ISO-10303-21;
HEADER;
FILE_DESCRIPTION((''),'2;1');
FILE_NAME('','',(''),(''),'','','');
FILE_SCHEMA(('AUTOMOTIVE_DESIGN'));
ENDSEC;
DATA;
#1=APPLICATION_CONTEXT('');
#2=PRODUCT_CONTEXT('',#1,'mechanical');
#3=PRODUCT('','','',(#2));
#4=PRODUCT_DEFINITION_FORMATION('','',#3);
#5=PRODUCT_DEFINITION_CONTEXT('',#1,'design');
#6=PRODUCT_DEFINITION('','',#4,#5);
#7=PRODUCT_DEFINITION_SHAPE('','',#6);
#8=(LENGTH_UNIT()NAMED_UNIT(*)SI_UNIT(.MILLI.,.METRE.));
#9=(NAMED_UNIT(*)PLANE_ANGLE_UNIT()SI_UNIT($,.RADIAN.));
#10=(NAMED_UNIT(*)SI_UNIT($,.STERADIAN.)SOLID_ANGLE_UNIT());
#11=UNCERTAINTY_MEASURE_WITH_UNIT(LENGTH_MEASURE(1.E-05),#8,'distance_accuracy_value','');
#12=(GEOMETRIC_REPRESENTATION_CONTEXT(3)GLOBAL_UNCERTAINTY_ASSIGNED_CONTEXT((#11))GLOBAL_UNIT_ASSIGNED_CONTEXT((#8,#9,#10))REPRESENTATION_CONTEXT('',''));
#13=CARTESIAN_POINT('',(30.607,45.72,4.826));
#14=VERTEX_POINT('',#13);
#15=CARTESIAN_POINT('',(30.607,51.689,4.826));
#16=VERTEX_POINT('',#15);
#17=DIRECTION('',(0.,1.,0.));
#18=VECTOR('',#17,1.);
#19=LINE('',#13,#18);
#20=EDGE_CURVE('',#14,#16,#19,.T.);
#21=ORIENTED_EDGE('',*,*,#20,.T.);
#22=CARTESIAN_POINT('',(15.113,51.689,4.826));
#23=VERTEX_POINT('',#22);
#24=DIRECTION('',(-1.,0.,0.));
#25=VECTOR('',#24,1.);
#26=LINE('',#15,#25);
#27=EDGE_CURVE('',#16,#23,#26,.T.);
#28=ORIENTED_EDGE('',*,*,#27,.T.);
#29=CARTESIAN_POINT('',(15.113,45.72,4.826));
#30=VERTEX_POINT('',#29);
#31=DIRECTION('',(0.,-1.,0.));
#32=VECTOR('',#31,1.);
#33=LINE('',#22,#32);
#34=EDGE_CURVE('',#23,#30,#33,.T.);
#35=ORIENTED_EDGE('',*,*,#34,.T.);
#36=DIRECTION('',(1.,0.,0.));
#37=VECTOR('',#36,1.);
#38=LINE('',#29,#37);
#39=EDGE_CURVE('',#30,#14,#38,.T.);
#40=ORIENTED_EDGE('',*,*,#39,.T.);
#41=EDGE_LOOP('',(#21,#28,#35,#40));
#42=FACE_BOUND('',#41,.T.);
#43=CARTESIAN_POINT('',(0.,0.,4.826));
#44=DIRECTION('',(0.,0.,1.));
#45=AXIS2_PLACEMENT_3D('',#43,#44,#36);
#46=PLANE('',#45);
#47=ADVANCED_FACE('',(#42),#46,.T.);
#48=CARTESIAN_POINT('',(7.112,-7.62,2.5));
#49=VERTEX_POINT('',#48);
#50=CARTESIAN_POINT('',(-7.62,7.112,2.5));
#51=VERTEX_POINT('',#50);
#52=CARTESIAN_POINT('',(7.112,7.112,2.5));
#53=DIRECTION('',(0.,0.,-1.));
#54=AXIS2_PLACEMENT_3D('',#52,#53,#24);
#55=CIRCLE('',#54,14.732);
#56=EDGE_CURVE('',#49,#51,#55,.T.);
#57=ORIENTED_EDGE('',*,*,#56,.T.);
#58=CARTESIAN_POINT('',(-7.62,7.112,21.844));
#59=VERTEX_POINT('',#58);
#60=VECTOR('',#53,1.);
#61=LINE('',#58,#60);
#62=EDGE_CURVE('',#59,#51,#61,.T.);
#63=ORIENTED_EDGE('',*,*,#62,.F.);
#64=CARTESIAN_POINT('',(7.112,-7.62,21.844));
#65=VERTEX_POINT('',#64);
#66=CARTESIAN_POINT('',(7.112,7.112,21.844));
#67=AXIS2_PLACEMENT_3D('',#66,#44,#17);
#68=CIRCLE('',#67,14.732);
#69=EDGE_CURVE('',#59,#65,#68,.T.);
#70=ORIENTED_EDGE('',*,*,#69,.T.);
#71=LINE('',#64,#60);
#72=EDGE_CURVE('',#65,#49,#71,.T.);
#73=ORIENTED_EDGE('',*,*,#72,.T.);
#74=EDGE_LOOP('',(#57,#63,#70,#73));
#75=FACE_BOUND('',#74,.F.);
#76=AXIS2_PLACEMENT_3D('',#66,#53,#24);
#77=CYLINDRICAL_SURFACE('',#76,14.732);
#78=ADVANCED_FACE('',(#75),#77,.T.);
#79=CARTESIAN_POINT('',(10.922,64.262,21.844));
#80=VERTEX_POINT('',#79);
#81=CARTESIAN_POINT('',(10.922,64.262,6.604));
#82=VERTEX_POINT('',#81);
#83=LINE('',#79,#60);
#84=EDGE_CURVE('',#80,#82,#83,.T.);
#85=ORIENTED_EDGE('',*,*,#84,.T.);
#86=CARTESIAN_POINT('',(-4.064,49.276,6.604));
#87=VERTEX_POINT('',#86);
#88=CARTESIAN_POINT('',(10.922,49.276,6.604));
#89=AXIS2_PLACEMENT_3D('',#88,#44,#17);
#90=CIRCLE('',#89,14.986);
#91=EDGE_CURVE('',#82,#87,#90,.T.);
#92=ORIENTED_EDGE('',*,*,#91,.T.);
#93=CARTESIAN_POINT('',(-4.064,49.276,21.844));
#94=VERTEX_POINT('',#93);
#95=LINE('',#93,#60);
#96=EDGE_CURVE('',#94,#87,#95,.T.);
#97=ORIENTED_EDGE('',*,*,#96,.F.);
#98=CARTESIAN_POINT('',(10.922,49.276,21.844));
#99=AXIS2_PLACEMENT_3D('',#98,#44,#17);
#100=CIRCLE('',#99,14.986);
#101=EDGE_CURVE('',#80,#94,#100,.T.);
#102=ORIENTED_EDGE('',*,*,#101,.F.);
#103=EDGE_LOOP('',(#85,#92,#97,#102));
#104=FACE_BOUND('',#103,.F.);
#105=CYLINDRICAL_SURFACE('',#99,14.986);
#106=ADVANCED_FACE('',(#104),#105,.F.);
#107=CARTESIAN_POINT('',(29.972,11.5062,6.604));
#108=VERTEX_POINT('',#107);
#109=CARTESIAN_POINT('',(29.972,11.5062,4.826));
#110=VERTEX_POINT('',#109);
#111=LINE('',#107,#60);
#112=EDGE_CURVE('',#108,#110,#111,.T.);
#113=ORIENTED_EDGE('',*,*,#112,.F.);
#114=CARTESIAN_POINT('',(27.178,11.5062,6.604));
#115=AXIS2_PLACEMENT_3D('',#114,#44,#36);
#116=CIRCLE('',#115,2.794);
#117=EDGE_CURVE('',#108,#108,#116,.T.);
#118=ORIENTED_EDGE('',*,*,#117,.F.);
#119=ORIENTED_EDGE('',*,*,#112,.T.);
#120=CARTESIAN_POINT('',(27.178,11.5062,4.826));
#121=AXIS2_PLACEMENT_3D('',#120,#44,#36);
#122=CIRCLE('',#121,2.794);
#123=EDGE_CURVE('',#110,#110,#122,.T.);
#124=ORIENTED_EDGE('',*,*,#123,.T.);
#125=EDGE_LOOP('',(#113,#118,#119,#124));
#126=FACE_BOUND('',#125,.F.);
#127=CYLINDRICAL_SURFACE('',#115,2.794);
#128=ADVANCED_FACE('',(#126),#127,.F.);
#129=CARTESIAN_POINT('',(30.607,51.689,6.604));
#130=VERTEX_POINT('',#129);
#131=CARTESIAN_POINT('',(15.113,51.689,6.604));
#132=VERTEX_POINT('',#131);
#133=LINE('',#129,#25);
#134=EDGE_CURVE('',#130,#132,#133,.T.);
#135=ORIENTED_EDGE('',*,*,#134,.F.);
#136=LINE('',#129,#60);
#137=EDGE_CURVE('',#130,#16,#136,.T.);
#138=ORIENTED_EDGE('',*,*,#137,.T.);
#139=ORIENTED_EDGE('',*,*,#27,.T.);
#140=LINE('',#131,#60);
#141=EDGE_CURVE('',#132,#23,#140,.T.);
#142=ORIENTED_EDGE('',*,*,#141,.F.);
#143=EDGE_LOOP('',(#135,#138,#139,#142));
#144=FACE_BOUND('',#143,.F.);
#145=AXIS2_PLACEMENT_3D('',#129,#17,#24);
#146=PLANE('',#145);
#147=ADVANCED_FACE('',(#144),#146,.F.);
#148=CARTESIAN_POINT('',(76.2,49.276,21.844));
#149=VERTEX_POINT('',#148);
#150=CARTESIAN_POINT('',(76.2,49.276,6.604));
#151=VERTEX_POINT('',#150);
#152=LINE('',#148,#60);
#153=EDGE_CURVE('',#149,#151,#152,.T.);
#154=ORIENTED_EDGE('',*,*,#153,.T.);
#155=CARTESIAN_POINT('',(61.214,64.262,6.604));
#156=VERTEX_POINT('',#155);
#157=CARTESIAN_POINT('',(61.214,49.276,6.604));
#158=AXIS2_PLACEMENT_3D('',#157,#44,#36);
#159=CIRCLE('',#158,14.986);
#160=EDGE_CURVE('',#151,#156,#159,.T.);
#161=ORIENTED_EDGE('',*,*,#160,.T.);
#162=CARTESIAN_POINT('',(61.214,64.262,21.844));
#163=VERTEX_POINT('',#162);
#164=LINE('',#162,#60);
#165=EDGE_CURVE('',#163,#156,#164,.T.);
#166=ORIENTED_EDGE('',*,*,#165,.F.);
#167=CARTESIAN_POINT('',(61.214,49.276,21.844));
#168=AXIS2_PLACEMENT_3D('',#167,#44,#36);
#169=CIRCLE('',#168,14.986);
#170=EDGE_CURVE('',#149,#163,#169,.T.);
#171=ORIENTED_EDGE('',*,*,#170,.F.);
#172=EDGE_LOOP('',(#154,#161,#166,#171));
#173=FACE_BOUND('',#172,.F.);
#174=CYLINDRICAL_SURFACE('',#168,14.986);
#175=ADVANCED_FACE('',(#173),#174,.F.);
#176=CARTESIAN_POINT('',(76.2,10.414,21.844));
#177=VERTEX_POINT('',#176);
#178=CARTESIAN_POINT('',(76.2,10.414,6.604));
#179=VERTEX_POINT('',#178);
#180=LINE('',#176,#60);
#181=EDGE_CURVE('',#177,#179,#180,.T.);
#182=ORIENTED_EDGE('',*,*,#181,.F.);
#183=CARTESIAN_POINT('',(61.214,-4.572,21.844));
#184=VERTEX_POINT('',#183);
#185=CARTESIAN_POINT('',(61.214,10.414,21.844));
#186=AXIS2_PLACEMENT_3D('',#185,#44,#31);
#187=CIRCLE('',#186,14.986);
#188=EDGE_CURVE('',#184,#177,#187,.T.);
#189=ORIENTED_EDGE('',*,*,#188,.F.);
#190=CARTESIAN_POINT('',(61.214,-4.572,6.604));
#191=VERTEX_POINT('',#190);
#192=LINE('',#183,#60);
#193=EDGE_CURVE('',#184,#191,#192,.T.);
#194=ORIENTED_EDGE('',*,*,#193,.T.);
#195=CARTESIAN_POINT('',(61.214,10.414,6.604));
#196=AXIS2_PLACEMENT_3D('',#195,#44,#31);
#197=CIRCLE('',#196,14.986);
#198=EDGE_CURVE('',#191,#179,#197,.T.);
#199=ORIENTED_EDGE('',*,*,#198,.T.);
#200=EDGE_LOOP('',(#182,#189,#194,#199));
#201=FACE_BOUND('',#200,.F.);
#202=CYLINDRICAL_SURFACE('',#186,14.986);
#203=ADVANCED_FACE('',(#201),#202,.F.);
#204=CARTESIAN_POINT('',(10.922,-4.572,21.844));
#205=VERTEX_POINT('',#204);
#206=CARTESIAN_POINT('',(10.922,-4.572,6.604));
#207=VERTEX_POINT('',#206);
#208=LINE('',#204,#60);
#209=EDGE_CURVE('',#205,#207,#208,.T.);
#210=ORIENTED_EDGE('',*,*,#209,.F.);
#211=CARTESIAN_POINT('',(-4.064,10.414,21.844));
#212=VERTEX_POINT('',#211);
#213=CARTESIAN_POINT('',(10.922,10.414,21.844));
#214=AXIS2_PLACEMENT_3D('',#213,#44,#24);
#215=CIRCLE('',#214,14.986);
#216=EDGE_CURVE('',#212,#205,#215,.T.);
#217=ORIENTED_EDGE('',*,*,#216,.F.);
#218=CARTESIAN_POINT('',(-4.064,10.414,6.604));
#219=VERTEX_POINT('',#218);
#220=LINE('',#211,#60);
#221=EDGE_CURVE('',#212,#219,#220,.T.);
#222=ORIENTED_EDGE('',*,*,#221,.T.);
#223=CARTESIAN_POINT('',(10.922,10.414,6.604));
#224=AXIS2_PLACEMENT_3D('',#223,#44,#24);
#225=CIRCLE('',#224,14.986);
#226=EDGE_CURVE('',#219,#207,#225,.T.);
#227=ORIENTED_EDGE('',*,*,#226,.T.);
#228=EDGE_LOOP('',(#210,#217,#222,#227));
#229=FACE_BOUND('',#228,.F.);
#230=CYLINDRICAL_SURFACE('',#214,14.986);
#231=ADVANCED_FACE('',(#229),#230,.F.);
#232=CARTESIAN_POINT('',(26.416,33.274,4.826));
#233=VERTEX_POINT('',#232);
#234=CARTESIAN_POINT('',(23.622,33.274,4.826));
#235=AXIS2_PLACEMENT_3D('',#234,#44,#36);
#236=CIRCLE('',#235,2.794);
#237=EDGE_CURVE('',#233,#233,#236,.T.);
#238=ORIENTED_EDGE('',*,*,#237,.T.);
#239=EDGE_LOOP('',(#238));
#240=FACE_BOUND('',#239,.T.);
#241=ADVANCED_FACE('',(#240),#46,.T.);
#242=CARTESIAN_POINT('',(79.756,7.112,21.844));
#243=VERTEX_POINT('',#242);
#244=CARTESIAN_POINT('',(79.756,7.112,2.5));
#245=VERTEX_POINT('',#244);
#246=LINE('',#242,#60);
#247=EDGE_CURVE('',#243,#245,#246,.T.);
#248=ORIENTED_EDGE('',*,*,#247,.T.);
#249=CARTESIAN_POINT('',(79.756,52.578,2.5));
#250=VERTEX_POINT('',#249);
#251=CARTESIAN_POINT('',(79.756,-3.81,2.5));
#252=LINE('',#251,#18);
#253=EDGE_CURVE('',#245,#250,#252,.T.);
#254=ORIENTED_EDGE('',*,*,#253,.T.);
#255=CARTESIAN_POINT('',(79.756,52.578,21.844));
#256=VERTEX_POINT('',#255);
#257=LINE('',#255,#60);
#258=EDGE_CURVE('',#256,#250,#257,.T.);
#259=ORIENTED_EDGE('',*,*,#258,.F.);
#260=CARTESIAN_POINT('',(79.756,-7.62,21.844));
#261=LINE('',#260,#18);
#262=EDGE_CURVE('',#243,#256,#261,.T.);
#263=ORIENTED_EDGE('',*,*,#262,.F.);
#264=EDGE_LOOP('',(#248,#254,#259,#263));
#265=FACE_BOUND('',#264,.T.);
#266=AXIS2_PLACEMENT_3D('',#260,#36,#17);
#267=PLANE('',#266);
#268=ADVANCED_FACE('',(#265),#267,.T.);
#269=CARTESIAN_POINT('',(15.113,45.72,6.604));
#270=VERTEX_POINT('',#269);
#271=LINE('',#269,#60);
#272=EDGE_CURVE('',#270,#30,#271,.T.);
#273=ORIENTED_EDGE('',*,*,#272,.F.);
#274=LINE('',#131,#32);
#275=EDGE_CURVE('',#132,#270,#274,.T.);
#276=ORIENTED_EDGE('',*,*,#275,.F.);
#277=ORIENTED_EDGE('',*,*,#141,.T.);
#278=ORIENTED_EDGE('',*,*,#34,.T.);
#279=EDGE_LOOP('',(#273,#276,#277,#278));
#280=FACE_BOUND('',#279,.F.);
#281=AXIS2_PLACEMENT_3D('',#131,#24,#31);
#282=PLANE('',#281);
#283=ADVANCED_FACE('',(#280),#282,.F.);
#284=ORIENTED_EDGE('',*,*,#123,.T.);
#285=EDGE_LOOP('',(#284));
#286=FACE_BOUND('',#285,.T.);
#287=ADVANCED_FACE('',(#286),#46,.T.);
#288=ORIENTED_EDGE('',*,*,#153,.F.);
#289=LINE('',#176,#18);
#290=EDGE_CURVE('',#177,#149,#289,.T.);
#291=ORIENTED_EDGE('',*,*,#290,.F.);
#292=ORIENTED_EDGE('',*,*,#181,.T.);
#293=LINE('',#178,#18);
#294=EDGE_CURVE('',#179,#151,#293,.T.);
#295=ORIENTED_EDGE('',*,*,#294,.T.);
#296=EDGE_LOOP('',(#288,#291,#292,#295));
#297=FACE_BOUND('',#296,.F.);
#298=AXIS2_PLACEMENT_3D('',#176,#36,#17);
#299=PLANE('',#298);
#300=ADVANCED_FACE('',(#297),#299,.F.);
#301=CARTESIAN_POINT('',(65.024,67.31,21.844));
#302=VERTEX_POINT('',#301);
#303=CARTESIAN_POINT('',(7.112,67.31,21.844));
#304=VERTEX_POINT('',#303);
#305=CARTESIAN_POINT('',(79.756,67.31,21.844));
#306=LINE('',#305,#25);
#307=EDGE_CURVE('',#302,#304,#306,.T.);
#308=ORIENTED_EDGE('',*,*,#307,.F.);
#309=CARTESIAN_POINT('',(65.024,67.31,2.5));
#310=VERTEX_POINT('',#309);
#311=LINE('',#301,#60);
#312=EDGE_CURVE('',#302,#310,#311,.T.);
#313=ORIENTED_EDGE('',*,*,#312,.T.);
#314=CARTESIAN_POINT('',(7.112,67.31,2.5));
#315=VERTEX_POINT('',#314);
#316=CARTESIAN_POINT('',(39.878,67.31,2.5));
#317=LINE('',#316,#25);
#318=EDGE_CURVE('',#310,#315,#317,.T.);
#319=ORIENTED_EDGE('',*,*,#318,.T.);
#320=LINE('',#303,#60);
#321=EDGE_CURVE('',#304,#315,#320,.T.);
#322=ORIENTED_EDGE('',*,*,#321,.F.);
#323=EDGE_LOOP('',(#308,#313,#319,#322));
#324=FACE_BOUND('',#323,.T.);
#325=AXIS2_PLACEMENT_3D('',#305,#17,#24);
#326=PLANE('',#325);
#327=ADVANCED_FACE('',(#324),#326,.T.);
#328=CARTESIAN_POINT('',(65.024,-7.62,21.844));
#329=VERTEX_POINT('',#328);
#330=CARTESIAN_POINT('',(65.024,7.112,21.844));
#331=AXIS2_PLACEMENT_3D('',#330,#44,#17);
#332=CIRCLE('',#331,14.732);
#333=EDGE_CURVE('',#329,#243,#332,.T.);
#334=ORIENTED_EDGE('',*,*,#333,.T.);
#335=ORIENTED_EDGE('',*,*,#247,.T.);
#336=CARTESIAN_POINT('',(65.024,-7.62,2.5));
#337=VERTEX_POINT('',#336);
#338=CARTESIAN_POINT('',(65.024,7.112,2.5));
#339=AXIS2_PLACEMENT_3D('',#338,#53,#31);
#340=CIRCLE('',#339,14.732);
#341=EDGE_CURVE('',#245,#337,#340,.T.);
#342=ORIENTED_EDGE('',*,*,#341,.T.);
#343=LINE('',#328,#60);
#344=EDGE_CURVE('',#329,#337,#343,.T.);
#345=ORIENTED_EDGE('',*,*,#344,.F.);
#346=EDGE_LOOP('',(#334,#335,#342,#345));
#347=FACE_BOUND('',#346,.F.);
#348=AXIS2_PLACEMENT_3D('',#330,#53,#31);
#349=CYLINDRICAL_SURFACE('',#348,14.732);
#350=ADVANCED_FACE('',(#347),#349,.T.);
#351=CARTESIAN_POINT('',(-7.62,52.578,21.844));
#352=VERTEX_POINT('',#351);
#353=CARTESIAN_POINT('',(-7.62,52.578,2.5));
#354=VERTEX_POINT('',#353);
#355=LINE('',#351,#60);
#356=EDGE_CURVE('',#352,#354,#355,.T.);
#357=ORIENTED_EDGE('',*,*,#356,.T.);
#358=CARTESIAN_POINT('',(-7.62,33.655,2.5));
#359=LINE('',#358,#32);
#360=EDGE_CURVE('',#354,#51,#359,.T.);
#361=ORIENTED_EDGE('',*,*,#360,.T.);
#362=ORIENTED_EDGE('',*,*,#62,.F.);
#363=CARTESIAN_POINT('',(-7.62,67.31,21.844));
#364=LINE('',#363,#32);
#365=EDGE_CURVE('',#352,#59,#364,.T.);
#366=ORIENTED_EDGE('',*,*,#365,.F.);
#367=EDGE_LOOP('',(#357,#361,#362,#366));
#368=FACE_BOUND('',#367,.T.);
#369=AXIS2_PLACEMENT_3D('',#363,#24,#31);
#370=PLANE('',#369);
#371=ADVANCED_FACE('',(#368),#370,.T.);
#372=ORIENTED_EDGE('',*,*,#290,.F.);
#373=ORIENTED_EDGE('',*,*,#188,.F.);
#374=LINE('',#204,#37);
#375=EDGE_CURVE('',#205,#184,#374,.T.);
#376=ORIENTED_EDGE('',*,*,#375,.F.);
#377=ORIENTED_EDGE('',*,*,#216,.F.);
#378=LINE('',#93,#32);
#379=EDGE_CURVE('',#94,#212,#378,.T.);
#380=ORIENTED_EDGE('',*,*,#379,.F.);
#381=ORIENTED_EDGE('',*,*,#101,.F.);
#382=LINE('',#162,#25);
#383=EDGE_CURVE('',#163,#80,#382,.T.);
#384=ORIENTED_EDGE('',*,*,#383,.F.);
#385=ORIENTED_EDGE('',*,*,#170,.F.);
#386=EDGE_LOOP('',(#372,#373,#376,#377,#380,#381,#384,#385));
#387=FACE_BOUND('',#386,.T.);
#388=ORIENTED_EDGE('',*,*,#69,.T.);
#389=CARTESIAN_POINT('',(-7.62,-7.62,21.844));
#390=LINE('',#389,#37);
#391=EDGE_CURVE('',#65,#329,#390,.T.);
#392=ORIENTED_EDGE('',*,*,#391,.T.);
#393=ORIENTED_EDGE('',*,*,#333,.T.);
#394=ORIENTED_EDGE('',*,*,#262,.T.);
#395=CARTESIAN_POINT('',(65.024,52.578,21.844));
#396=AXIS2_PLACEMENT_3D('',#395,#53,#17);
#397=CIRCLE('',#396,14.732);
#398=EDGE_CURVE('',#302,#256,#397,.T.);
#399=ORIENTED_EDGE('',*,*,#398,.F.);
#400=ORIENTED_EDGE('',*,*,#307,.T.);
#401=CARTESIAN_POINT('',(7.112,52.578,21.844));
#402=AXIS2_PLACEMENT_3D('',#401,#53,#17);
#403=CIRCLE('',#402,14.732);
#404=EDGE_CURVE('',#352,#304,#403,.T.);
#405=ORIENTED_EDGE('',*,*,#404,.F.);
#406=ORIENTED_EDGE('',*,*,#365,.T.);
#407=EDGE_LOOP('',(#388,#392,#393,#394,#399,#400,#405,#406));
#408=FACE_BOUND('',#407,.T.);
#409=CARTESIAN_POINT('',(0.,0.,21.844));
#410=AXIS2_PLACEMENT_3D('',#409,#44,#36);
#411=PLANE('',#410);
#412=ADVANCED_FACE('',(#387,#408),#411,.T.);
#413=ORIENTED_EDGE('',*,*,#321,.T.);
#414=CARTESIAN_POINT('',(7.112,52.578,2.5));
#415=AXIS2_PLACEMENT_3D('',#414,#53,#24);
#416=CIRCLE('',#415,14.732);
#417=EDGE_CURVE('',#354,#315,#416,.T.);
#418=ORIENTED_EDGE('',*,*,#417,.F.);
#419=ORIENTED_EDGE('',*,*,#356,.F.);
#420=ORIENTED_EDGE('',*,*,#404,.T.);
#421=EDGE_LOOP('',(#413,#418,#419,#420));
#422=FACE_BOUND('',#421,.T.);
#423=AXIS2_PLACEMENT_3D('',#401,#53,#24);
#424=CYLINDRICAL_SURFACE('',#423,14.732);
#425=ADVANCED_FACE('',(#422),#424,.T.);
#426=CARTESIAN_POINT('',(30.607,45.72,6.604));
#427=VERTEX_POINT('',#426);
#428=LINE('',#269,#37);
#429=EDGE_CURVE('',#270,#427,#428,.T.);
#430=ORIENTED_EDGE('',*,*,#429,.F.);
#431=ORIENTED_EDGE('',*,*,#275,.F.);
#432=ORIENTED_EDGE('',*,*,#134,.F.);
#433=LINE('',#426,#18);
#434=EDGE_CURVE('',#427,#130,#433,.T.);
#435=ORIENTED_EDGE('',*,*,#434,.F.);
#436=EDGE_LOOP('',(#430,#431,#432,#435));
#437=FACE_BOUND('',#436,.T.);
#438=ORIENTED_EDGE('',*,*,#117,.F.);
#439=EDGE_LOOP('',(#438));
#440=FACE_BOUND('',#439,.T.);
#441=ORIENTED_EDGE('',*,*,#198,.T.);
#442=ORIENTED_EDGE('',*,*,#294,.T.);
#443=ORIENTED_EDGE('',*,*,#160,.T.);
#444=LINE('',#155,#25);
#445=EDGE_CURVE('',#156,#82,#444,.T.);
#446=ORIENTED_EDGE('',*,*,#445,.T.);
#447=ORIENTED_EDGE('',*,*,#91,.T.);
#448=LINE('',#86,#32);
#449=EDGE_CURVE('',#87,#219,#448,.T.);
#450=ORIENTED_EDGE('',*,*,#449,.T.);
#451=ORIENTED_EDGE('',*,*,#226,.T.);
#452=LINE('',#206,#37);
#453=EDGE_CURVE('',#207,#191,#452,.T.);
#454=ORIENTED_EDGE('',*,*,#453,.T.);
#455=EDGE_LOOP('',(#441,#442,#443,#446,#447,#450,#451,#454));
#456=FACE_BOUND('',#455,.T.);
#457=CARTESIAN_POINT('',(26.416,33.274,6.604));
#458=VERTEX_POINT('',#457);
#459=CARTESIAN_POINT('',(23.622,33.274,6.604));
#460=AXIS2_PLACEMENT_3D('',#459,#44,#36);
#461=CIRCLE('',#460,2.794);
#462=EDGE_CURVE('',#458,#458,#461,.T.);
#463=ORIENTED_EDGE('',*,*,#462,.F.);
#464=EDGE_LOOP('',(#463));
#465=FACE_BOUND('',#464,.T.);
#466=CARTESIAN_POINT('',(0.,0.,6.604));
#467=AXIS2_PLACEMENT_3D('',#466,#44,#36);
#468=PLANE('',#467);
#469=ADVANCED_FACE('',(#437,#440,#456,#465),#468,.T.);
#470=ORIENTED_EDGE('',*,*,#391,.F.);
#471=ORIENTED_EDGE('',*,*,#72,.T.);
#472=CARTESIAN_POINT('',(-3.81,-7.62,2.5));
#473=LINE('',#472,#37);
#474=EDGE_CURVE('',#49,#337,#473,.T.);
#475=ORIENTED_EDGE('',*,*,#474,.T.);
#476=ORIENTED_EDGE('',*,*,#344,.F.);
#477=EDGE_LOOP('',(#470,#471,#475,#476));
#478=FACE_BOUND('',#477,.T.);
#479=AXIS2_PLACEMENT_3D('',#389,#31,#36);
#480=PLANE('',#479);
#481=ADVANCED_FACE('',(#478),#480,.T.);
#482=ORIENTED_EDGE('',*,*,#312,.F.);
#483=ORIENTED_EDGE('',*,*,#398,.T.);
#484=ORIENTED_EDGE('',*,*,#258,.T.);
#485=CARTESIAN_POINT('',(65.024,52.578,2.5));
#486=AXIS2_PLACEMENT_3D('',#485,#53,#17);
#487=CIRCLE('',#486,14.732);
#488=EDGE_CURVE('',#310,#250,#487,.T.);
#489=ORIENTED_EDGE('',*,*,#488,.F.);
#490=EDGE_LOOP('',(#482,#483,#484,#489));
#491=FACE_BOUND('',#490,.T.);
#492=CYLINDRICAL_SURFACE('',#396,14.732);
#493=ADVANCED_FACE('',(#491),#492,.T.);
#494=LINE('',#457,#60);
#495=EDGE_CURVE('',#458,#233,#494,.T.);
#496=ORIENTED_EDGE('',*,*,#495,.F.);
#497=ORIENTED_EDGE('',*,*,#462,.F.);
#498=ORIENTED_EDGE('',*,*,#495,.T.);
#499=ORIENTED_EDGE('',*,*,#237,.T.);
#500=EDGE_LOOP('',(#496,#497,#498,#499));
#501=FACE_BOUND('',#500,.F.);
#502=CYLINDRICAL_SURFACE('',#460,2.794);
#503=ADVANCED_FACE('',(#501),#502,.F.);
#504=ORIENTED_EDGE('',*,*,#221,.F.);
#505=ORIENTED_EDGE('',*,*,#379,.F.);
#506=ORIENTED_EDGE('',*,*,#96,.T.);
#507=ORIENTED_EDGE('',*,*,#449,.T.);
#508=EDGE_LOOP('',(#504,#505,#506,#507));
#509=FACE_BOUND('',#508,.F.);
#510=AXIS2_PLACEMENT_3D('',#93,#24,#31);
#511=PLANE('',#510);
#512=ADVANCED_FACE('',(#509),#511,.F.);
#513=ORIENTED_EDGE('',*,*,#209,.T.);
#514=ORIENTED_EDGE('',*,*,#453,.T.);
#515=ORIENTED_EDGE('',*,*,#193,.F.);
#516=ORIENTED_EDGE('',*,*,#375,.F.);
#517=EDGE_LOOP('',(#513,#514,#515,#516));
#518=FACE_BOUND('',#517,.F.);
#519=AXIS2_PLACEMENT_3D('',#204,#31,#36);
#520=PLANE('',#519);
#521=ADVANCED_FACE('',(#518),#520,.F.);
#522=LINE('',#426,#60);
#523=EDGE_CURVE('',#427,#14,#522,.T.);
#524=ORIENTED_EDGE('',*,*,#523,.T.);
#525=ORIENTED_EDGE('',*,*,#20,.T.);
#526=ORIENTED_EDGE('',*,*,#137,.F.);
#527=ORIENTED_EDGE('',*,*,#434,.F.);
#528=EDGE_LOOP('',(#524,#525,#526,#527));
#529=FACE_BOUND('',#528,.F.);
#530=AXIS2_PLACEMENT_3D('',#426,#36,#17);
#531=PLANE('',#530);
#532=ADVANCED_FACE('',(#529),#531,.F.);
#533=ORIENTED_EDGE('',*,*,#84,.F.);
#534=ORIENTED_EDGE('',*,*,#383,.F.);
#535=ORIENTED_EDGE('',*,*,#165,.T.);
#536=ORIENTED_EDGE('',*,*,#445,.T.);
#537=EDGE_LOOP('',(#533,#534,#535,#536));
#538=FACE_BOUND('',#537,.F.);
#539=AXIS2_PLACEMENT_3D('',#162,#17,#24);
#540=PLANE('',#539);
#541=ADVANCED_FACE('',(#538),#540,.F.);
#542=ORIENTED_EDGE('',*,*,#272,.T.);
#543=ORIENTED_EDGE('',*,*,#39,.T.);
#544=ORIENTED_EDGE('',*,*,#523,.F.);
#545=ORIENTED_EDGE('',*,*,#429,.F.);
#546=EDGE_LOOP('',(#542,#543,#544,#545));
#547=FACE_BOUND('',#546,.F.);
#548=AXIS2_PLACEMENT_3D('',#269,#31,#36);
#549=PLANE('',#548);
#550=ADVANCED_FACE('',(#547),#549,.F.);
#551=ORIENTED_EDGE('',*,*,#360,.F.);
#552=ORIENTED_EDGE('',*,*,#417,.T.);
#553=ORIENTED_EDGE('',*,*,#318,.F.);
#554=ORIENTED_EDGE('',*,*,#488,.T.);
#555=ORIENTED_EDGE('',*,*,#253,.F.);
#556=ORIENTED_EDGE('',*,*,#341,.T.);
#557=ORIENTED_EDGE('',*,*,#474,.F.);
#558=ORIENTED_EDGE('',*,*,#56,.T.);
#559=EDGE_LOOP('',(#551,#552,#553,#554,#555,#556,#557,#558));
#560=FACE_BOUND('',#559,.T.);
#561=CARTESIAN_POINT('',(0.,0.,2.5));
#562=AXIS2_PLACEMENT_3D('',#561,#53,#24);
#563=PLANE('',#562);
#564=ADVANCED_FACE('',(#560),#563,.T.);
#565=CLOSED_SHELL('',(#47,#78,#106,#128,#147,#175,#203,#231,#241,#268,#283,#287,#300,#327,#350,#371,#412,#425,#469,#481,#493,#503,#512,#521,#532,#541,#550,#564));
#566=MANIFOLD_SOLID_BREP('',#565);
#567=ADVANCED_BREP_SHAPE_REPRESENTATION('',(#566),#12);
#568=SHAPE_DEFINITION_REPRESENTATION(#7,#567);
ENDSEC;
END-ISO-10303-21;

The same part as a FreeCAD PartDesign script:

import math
import FreeCAD as App
import Part
import Sketcher

V = App.Vector
Q = App.Units.Quantity


def edges_at(feature, points):
    """Names of the edges that pass closest to the given points."""
    edges = feature.Shape.Edges
    near = lambda p: min(range(len(edges)), key=lambda i: edges[i].distToShape(Part.Vertex(*p))[0])
    return sorted({f"Edge{near(p) + 1}" for p in points})

doc = App.newDocument("Part")
params = doc.addObject("Spreadsheet::Sheet", "Params")
for row, (alias, value) in enumerate([
    ("sketch1_width", "2.84 in"),
    ("sketch1_height", "2.35 in"),
    ("pad1_length", "0.86 in"),
    ("sketch2_width", "2.6 in"),
    ("sketch2_height", "2.11 in"),
    ("pocket1_length", "0.6 in"),
    ("sketch3_diameter", "0.22 in"),
    ("sketch3_width", "0.61 in"),
    ("sketch3_height", "0.235 in"),
    ("pocket2_length", "0.07 in"),
    ("sketch4_width", "3.04 in"),
    ("sketch4_height", "2.55 in"),
    ("pad2_length", "0.86 in"),
    ("sketch5_width", "2.9 in"),
    ("sketch5_height", "2.41 in"),
    ("pocket3_length", "0.6 in"),
    ("sketch6_width", "3.44 in"),
    ("sketch6_height", "2.95 in"),
    ("pad3_length", "0.86 in"),
    ("sketch7_width", "2.9 in"),
    ("sketch7_height", "2.41 in"),
    ("pad4_length", "0.6 in"),
    ("sketch8_radius", "0.59 in"),
    ("sketch8_width", "2.7 in"),
    ("sketch8_height", "1.53 in"),
    ("pocket4_length", "0.6 in"),
    ("fillet_radius", "0.58 in"),
    ("sketch9_width", "4.687 in"),
    ("pocket5_length", "2.5 mm"),
], start=1):
    params.set(f"A{row}", alias)
    params.set(f"B{row}", "=" + value)
    params.setAlias(f"B{row}", alias)

body = doc.addObject("PartDesign::Body", "Body")

sketch1 = body.newObject("Sketcher::SketchObject", "Sketch")
sketch1.AttachmentSupport = (doc.getObject("XY_Plane"), [""])
sketch1.MapMode = "FlatFace"
sketch1.addGeometry(Part.LineSegment(V(0, 60, 0), V(0, 0, 0)), False)
sketch1.addGeometry(Part.LineSegment(V(0, 0, 0), V(72, 0, 0)), False)
sketch1.addGeometry(Part.LineSegment(V(72, 0, 0), V(72, 60, 0)), False)
sketch1.addGeometry(Part.LineSegment(V(72, 60, 0), V(0, 60, 0)), False)
sketch1.addConstraint(Sketcher.Constraint("Coincident", 0, 2, 1, 1))
sketch1.addConstraint(Sketcher.Constraint("Coincident", 1, 2, 2, 1))
sketch1.addConstraint(Sketcher.Constraint("Coincident", 2, 2, 3, 1))
sketch1.addConstraint(Sketcher.Constraint("Coincident", 3, 2, 0, 1))
sketch1.addConstraint(Sketcher.Constraint("Vertical", 0))
sketch1.addConstraint(Sketcher.Constraint("Horizontal", 1))
sketch1.addConstraint(Sketcher.Constraint("Vertical", 2))
sketch1.addConstraint(Sketcher.Constraint("Horizontal", 3))
sketch1.addConstraint(Sketcher.Constraint("Coincident", 0, 2, -1, 1))
sketch1.addConstraint(Sketcher.Constraint("DistanceX", 1, 1, 1, 2, Q("2.84 in")))
sketch1.addConstraint(Sketcher.Constraint("DistanceY", 0, 2, 0, 1, Q("2.35 in")))
sketch1.setExpression("Constraints[9]", "Params.sketch1_width")
sketch1.setExpression("Constraints[10]", "Params.sketch1_height")
pad1 = body.newObject("PartDesign::Pad", "Pad")
pad1.Profile = sketch1
pad1.setExpression("Length", "Params.pad1_length")

sketch2 = body.newObject("Sketcher::SketchObject", "Sketch001")
sketch2.AttachmentSupport = (doc.getObject("XY_Plane"), [""])
sketch2.MapMode = "FlatFace"
sketch2.AttachmentOffset = App.Placement(V(0, 0, 0.86 * 25.4), App.Rotation())
sketch2.addGeometry(Part.LineSegment(V(69, 57, 0), V(3, 57, 0)), False)
sketch2.addGeometry(Part.LineSegment(V(3, 57, 0), V(3, 3, 0)), False)
sketch2.addGeometry(Part.LineSegment(V(3, 3, 0), V(69, 3, 0)), False)
sketch2.addGeometry(Part.LineSegment(V(69, 3, 0), V(69, 57, 0)), False)
sketch2.addConstraint(Sketcher.Constraint("Coincident", 0, 2, 1, 1))
sketch2.addConstraint(Sketcher.Constraint("Coincident", 1, 2, 2, 1))
sketch2.addConstraint(Sketcher.Constraint("Coincident", 2, 2, 3, 1))
sketch2.addConstraint(Sketcher.Constraint("Coincident", 3, 2, 0, 1))
sketch2.addConstraint(Sketcher.Constraint("Horizontal", 0))
sketch2.addConstraint(Sketcher.Constraint("Vertical", 1))
sketch2.addConstraint(Sketcher.Constraint("Horizontal", 2))
sketch2.addConstraint(Sketcher.Constraint("Vertical", 3))
sketch2.addConstraint(Sketcher.Constraint("DistanceX", -1, 1, 0, 2, Q("0.12 in")))
sketch2.addConstraint(Sketcher.Constraint("DistanceY", -1, 1, 1, 2, Q("0.12 in")))
sketch2.addConstraint(Sketcher.Constraint("DistanceX", 0, 2, 0, 1, Q("2.6 in")))
sketch2.addConstraint(Sketcher.Constraint("DistanceY", 1, 2, 1, 1, Q("2.11 in")))
sketch2.setExpression("Constraints[10]", "Params.sketch2_width")
sketch2.setExpression("Constraints[11]", "Params.sketch2_height")
pocket1 = body.newObject("PartDesign::Pocket", "Pocket")
pocket1.Profile = sketch2
pocket1.setExpression("Length", "Params.pocket1_length")

sketch3 = body.newObject("Sketcher::SketchObject", "Sketch002")
sketch3.AttachmentSupport = (doc.getObject("XY_Plane"), [""])
sketch3.MapMode = "FlatFace"
sketch3.AttachmentOffset = App.Placement(V(0, 0, 0.26 * 25.4), App.Rotation())
sketch3.addGeometry(Part.LineSegment(V(15.1, 51.7, 0), V(15.1, 45.7, 0)), False)
sketch3.addGeometry(Part.LineSegment(V(15.1, 45.7, 0), V(30.6, 45.7, 0)), False)
sketch3.addGeometry(Part.LineSegment(V(30.6, 45.7, 0), V(30.6, 51.7, 0)), False)
sketch3.addGeometry(Part.LineSegment(V(30.6, 51.7, 0), V(15.1, 51.7, 0)), False)
sketch3.addGeometry(Part.Circle(V(23.6, 33.3, 0), V(0, 0, 1), 2.8), False)
sketch3.addGeometry(Part.Circle(V(27.2, 11.5, 0), V(0, 0, 1), 2.8), False)
sketch3.addConstraint(Sketcher.Constraint("Coincident", 0, 2, 1, 1))
sketch3.addConstraint(Sketcher.Constraint("Coincident", 1, 2, 2, 1))
sketch3.addConstraint(Sketcher.Constraint("Coincident", 2, 2, 3, 1))
sketch3.addConstraint(Sketcher.Constraint("Coincident", 3, 2, 0, 1))
sketch3.addConstraint(Sketcher.Constraint("Vertical", 0))
sketch3.addConstraint(Sketcher.Constraint("Horizontal", 1))
sketch3.addConstraint(Sketcher.Constraint("Vertical", 2))
sketch3.addConstraint(Sketcher.Constraint("Horizontal", 3))
sketch3.addConstraint(Sketcher.Constraint("Equal", 4, 5))
sketch3.addConstraint(Sketcher.Constraint("Diameter", 4, Q("0.22 in")))
sketch3.addConstraint(Sketcher.Constraint("DistanceX", 1, 1, 1, 2, Q("0.61 in")))
sketch3.addConstraint(Sketcher.Constraint("DistanceY", 0, 2, 0, 1, Q("0.235 in")))
sketch3.addConstraint(Sketcher.Constraint("DistanceX", 0, 2, 5, 3, Q("0.475 in")))
sketch3.addConstraint(Sketcher.Constraint("DistanceY", -1, 1, 0, 2, Q("1.8 in")))
sketch3.addConstraint(Sketcher.Constraint("DistanceX", -1, 1, 4, 3, Q("0.93 in")))
sketch3.addConstraint(Sketcher.Constraint("DistanceY", -1, 1, 4, 3, Q("1.31 in")))
sketch3.addConstraint(Sketcher.Constraint("DistanceX", -1, 1, 5, 3, Q("1.07 in")))
sketch3.addConstraint(Sketcher.Constraint("DistanceY", -1, 1, 5, 3, Q("0.453 in")))
sketch3.setExpression("Constraints[9]", "Params.sketch3_diameter")
sketch3.setExpression("Constraints[10]", "Params.sketch3_width")
sketch3.setExpression("Constraints[11]", "Params.sketch3_height")
pocket2 = body.newObject("PartDesign::Pocket", "Pocket001")
pocket2.Profile = sketch3
pocket2.setExpression("Length", "Params.pocket2_length")

sketch4 = body.newObject("Sketcher::SketchObject", "Sketch003")
sketch4.AttachmentSupport = (doc.getObject("XY_Plane"), [""])
sketch4.MapMode = "FlatFace"
sketch4.AttachmentOffset = App.Placement(V(0, 0, 0.86 * 25.4), App.Rotation())
sketch4.addGeometry(Part.LineSegment(V(-3, 62, 0), V(-3, -3, 0)), False)
sketch4.addGeometry(Part.LineSegment(V(-3, -3, 0), V(75, -3, 0)), False)
sketch4.addGeometry(Part.LineSegment(V(75, -3, 0), V(75, 62, 0)), False)
sketch4.addGeometry(Part.LineSegment(V(75, 62, 0), V(-3, 62, 0)), False)
sketch4.addGeometry(Part.LineSegment(V(72, 60, 0), V(72, 0, 0)), False)
sketch4.addGeometry(Part.LineSegment(V(72, 0, 0), V(0, 0, 0)), False)
sketch4.addGeometry(Part.LineSegment(V(0, 0, 0), V(0, 60, 0)), False)
sketch4.addGeometry(Part.LineSegment(V(0, 60, 0), V(72, 60, 0)), False)
sketch4.addConstraint(Sketcher.Constraint("Coincident", 0, 2, 1, 1))
sketch4.addConstraint(Sketcher.Constraint("Coincident", 1, 2, 2, 1))
sketch4.addConstraint(Sketcher.Constraint("Coincident", 2, 2, 3, 1))
sketch4.addConstraint(Sketcher.Constraint("Coincident", 3, 2, 0, 1))
sketch4.addConstraint(Sketcher.Constraint("Coincident", 4, 2, 5, 1))
sketch4.addConstraint(Sketcher.Constraint("Coincident", 5, 2, 6, 1))
sketch4.addConstraint(Sketcher.Constraint("Coincident", 6, 2, 7, 1))
sketch4.addConstraint(Sketcher.Constraint("Coincident", 7, 2, 4, 1))
sketch4.addConstraint(Sketcher.Constraint("Vertical", 0))
sketch4.addConstraint(Sketcher.Constraint("Horizontal", 1))
sketch4.addConstraint(Sketcher.Constraint("Vertical", 2))
sketch4.addConstraint(Sketcher.Constraint("Horizontal", 3))
sketch4.addConstraint(Sketcher.Constraint("Vertical", 4))
sketch4.addConstraint(Sketcher.Constraint("Horizontal", 5))
sketch4.addConstraint(Sketcher.Constraint("Vertical", 6))
sketch4.addConstraint(Sketcher.Constraint("Horizontal", 7))
sketch4.addConstraint(Sketcher.Constraint("Coincident", 5, 2, -1, 1))
sketch4.addConstraint(Sketcher.Constraint("DistanceX", 0, 2, -1, 1, Q("0.1 in")))
sketch4.addConstraint(Sketcher.Constraint("DistanceY", 0, 2, -1, 1, Q("0.1 in")))
sketch4.addConstraint(Sketcher.Constraint("DistanceX", 4, 2, 1, 2, Q("0.1 in")))
sketch4.addConstraint(Sketcher.Constraint("DistanceY", 6, 2, 3, 2, Q("0.1 in")))
sketch4.addConstraint(Sketcher.Constraint("DistanceX", 1, 1, 1, 2, Q("3.04 in")))
sketch4.addConstraint(Sketcher.Constraint("DistanceY", 0, 2, 0, 1, Q("2.55 in")))
sketch4.setExpression("Constraints[21]", "Params.sketch4_width")
sketch4.setExpression("Constraints[22]", "Params.sketch4_height")
pad2 = body.newObject("PartDesign::Pad", "Pad001")
pad2.Profile = sketch4
pad2.setExpression("Length", "Params.pad2_length")
pad2.Reversed = True

sketch5 = body.newObject("Sketcher::SketchObject", "Sketch004")
sketch5.AttachmentSupport = (doc.getObject("XY_Plane"), [""])
sketch5.MapMode = "FlatFace"
sketch5.AttachmentOffset = App.Placement(V(0, 0, 0.86 * 25.4), App.Rotation())
sketch5.addGeometry(Part.LineSegment(V(-1, 60, 0), V(-1, -1, 0)), False)
sketch5.addGeometry(Part.LineSegment(V(-1, -1, 0), V(73, -1, 0)), False)
sketch5.addGeometry(Part.LineSegment(V(73, -1, 0), V(73, 60, 0)), False)
sketch5.addGeometry(Part.LineSegment(V(73, 60, 0), V(-1, 60, 0)), False)
sketch5.addGeometry(Part.LineSegment(V(69, 3, 0), V(3, 3, 0)), False)
sketch5.addGeometry(Part.LineSegment(V(3, 3, 0), V(3, 57, 0)), False)
sketch5.addGeometry(Part.LineSegment(V(3, 57, 0), V(69, 57, 0)), False)
sketch5.addGeometry(Part.LineSegment(V(69, 57, 0), V(69, 3, 0)), False)
sketch5.addConstraint(Sketcher.Constraint("Coincident", 0, 2, 1, 1))
sketch5.addConstraint(Sketcher.Constraint("Coincident", 1, 2, 2, 1))
sketch5.addConstraint(Sketcher.Constraint("Coincident", 2, 2, 3, 1))
sketch5.addConstraint(Sketcher.Constraint("Coincident", 3, 2, 0, 1))
sketch5.addConstraint(Sketcher.Constraint("Coincident", 4, 2, 5, 1))
sketch5.addConstraint(Sketcher.Constraint("Coincident", 5, 2, 6, 1))
sketch5.addConstraint(Sketcher.Constraint("Coincident", 6, 2, 7, 1))
sketch5.addConstraint(Sketcher.Constraint("Coincident", 7, 2, 4, 1))
sketch5.addConstraint(Sketcher.Constraint("Vertical", 0))
sketch5.addConstraint(Sketcher.Constraint("Horizontal", 1))
sketch5.addConstraint(Sketcher.Constraint("Vertical", 2))
sketch5.addConstraint(Sketcher.Constraint("Horizontal", 3))
sketch5.addConstraint(Sketcher.Constraint("Horizontal", 4))
sketch5.addConstraint(Sketcher.Constraint("Vertical", 5))
sketch5.addConstraint(Sketcher.Constraint("Horizontal", 6))
sketch5.addConstraint(Sketcher.Constraint("Vertical", 7))
sketch5.addConstraint(Sketcher.Constraint("DistanceX", 0, 2, 4, 2, Q("0.15 in")))
sketch5.addConstraint(Sketcher.Constraint("DistanceY", 0, 2, 4, 2, Q("0.15 in")))
sketch5.addConstraint(Sketcher.Constraint("DistanceY", 5, 2, 3, 2, Q("0.15 in")))
sketch5.addConstraint(Sketcher.Constraint("DistanceX", 6, 2, 2, 2, Q("0.15 in")))
sketch5.addConstraint(Sketcher.Constraint("DistanceX", 1, 1, 1, 2, Q("2.9 in")))
sketch5.addConstraint(Sketcher.Constraint("DistanceY", 0, 2, 0, 1, Q("2.41 in")))
sketch5.addConstraint(Sketcher.Constraint("DistanceX", 0, 2, -1, 1, Q("0.03 in")))
sketch5.addConstraint(Sketcher.Constraint("DistanceY", 0, 2, -1, 1, Q("0.03 in")))
sketch5.setExpression("Constraints[20]", "Params.sketch5_width")
sketch5.setExpression("Constraints[21]", "Params.sketch5_height")
pocket3 = body.newObject("PartDesign::Pocket", "Pocket002")
pocket3.Profile = sketch5
pocket3.setExpression("Length", "Params.pocket3_length")

sketch6 = body.newObject("Sketcher::SketchObject", "Sketch005")
sketch6.AttachmentSupport = (doc.getObject("XY_Plane"), [""])
sketch6.MapMode = "FlatFace"
sketch6.AttachmentOffset = App.Placement(V(0, 0, 0.86 * 25.4), App.Rotation())
sketch6.addGeometry(Part.LineSegment(V(-8, 67, 0), V(-8, -8, 0)), False)
sketch6.addGeometry(Part.LineSegment(V(-8, -8, 0), V(80, -8, 0)), False)
sketch6.addGeometry(Part.LineSegment(V(80, -8, 0), V(80, 67, 0)), False)
sketch6.addGeometry(Part.LineSegment(V(80, 67, 0), V(-8, 67, 0)), False)
sketch6.addGeometry(Part.LineSegment(V(75, 62, 0), V(75, -3, 0)), False)
sketch6.addGeometry(Part.LineSegment(V(75, -3, 0), V(-3, -3, 0)), False)
sketch6.addGeometry(Part.LineSegment(V(-3, -3, 0), V(-3, 62, 0)), False)
sketch6.addGeometry(Part.LineSegment(V(-3, 62, 0), V(75, 62, 0)), False)
sketch6.addConstraint(Sketcher.Constraint("Coincident", 0, 2, 1, 1))
sketch6.addConstraint(Sketcher.Constraint("Coincident", 1, 2, 2, 1))
sketch6.addConstraint(Sketcher.Constraint("Coincident", 2, 2, 3, 1))
sketch6.addConstraint(Sketcher.Constraint("Coincident", 3, 2, 0, 1))
sketch6.addConstraint(Sketcher.Constraint("Coincident", 4, 2, 5, 1))
sketch6.addConstraint(Sketcher.Constraint("Coincident", 5, 2, 6, 1))
sketch6.addConstraint(Sketcher.Constraint("Coincident", 6, 2, 7, 1))
sketch6.addConstraint(Sketcher.Constraint("Coincident", 7, 2, 4, 1))
sketch6.addConstraint(Sketcher.Constraint("Vertical", 0))
sketch6.addConstraint(Sketcher.Constraint("Horizontal", 1))
sketch6.addConstraint(Sketcher.Constraint("Vertical", 2))
sketch6.addConstraint(Sketcher.Constraint("Horizontal", 3))
sketch6.addConstraint(Sketcher.Constraint("Vertical", 4))
sketch6.addConstraint(Sketcher.Constraint("Horizontal", 5))
sketch6.addConstraint(Sketcher.Constraint("Vertical", 6))
sketch6.addConstraint(Sketcher.Constraint("Horizontal", 7))
sketch6.addConstraint(Sketcher.Constraint("DistanceX", 4, 2, 1, 2, Q("0.2 in")))
sketch6.addConstraint(Sketcher.Constraint("DistanceY", 1, 2, 4, 2, Q("0.2 in")))
sketch6.addConstraint(Sketcher.Constraint("DistanceX", 0, 2, 5, 2, Q("0.2 in")))
sketch6.addConstraint(Sketcher.Constraint("DistanceY", 6, 2, 3, 2, Q("0.2 in")))
sketch6.addConstraint(Sketcher.Constraint("DistanceX", 1, 1, 1, 2, Q("3.44 in")))
sketch6.addConstraint(Sketcher.Constraint("DistanceY", 0, 2, 0, 1, Q("2.95 in")))
sketch6.addConstraint(Sketcher.Constraint("DistanceX", 0, 2, -1, 1, Q("0.3 in")))
sketch6.addConstraint(Sketcher.Constraint("DistanceY", 0, 2, -1, 1, Q("0.3 in")))
sketch6.setExpression("Constraints[20]", "Params.sketch6_width")
sketch6.setExpression("Constraints[21]", "Params.sketch6_height")
pad3 = body.newObject("PartDesign::Pad", "Pad002")
pad3.Profile = sketch6
pad3.setExpression("Length", "Params.pad3_length")
pad3.Reversed = True

sketch7 = body.newObject("Sketcher::SketchObject", "Sketch006")
sketch7.AttachmentSupport = (doc.getObject("XY_Plane"), [""])
sketch7.MapMode = "FlatFace"
sketch7.AttachmentOffset = App.Placement(V(0, 0, 0.86 * 25.4), App.Rotation())
sketch7.addGeometry(Part.LineSegment(V(-1, -1, 0), V(73, -1, 0)), False)
sketch7.addGeometry(Part.LineSegment(V(73, -1, 0), V(73, 60, 0)), False)
sketch7.addGeometry(Part.LineSegment(V(73, 60, 0), V(-1, 60, 0)), False)
sketch7.addGeometry(Part.LineSegment(V(-1, 60, 0), V(-1, -1, 0)), False)
sketch7.addGeometry(Part.LineSegment(V(2, 58, 0), V(70, 58, 0)), False)
sketch7.addGeometry(Part.LineSegment(V(70, 58, 0), V(70, 2, 0)), False)
sketch7.addGeometry(Part.LineSegment(V(70, 2, 0), V(2, 2, 0)), False)
sketch7.addGeometry(Part.LineSegment(V(2, 2, 0), V(2, 58, 0)), False)
sketch7.addConstraint(Sketcher.Constraint("Coincident", 0, 2, 1, 1))
sketch7.addConstraint(Sketcher.Constraint("Coincident", 1, 2, 2, 1))
sketch7.addConstraint(Sketcher.Constraint("Coincident", 2, 2, 3, 1))
sketch7.addConstraint(Sketcher.Constraint("Coincident", 3, 2, 0, 1))
sketch7.addConstraint(Sketcher.Constraint("Coincident", 4, 2, 5, 1))
sketch7.addConstraint(Sketcher.Constraint("Coincident", 5, 2, 6, 1))
sketch7.addConstraint(Sketcher.Constraint("Coincident", 6, 2, 7, 1))
sketch7.addConstraint(Sketcher.Constraint("Coincident", 7, 2, 4, 1))
sketch7.addConstraint(Sketcher.Constraint("Horizontal", 0))
sketch7.addConstraint(Sketcher.Constraint("Vertical", 1))
sketch7.addConstraint(Sketcher.Constraint("Horizontal", 2))
sketch7.addConstraint(Sketcher.Constraint("Vertical", 3))
sketch7.addConstraint(Sketcher.Constraint("Horizontal", 4))
sketch7.addConstraint(Sketcher.Constraint("Vertical", 5))
sketch7.addConstraint(Sketcher.Constraint("Horizontal", 6))
sketch7.addConstraint(Sketcher.Constraint("Vertical", 7))
sketch7.addConstraint(Sketcher.Constraint("DistanceX", 4, 2, 1, 2, Q("0.1 in")))
sketch7.addConstraint(Sketcher.Constraint("DistanceY", 4, 2, 1, 2, Q("0.1 in")))
sketch7.addConstraint(Sketcher.Constraint("DistanceY", 0, 2, 5, 2, Q("0.1 in")))
sketch7.addConstraint(Sketcher.Constraint("DistanceX", 3, 2, 6, 2, Q("0.1 in")))
sketch7.addConstraint(Sketcher.Constraint("DistanceX", 0, 1, 0, 2, Q("2.9 in")))
sketch7.addConstraint(Sketcher.Constraint("DistanceY", 1, 1, 1, 2, Q("2.41 in")))
sketch7.addConstraint(Sketcher.Constraint("DistanceX", -1, 1, 0, 2, Q("2.87 in")))
sketch7.addConstraint(Sketcher.Constraint("DistanceY", 0, 2, -1, 1, Q("0.03 in")))
sketch7.setExpression("Constraints[20]", "Params.sketch7_width")
sketch7.setExpression("Constraints[21]", "Params.sketch7_height")
pad4 = body.newObject("PartDesign::Pad", "Pad003")
pad4.Profile = sketch7
pad4.setExpression("Length", "Params.pad4_length")
pad4.Reversed = True

sketch8 = body.newObject("Sketcher::SketchObject", "Sketch007")
sketch8.AttachmentSupport = (doc.getObject("XY_Plane"), [""])
sketch8.MapMode = "FlatFace"
sketch8.AttachmentOffset = App.Placement(V(0, 0, 0.86 * 25.4), App.Rotation())
sketch8.addGeometry(Part.ArcOfCircle(Part.Circle(V(11, 10, 0), V(0, 0, 1), 15), math.radians(180), math.radians(270)), False)
sketch8.addGeometry(Part.LineSegment(V(11, -5, 0), V(61, -5, 0)), False)
sketch8.addGeometry(Part.ArcOfCircle(Part.Circle(V(61, 10, 0), V(0, 0, 1), 15), math.radians(-90), math.radians(0)), False)
sketch8.addGeometry(Part.LineSegment(V(76, 10, 0), V(76, 49, 0)), False)
sketch8.addGeometry(Part.ArcOfCircle(Part.Circle(V(61, 49, 0), V(0, 0, 1), 15), math.radians(0), math.radians(90)), False)
sketch8.addGeometry(Part.LineSegment(V(61, 64, 0), V(11, 64, 0)), False)
sketch8.addGeometry(Part.ArcOfCircle(Part.Circle(V(11, 49, 0), V(0, 0, 1), 15), math.radians(90), math.radians(180)), False)
sketch8.addGeometry(Part.LineSegment(V(-4, 49, 0), V(-4, 10, 0)), False)
sketch8.addGeometry(Part.LineSegment(V(2, 2, 0), V(2, 58, 0)), False)
sketch8.addGeometry(Part.LineSegment(V(2, 58, 0), V(70, 58, 0)), False)
sketch8.addGeometry(Part.LineSegment(V(70, 58, 0), V(70, 2, 0)), False)
sketch8.addGeometry(Part.LineSegment(V(70, 2, 0), V(2, 2, 0)), False)
sketch8.addConstraint(Sketcher.Constraint("Tangent", 0, 2, 1, 1))
sketch8.addConstraint(Sketcher.Constraint("Tangent", 1, 2, 2, 1))
sketch8.addConstraint(Sketcher.Constraint("Tangent", 2, 2, 3, 1))
sketch8.addConstraint(Sketcher.Constraint("Tangent", 3, 2, 4, 1))
sketch8.addConstraint(Sketcher.Constraint("Tangent", 4, 2, 5, 1))
sketch8.addConstraint(Sketcher.Constraint("Tangent", 5, 2, 6, 1))
sketch8.addConstraint(Sketcher.Constraint("Tangent", 6, 2, 7, 1))
sketch8.addConstraint(Sketcher.Constraint("Tangent", 7, 2, 0, 1))
sketch8.addConstraint(Sketcher.Constraint("Coincident", 8, 2, 9, 1))
sketch8.addConstraint(Sketcher.Constraint("Coincident", 9, 2, 10, 1))
sketch8.addConstraint(Sketcher.Constraint("Coincident", 10, 2, 11, 1))
sketch8.addConstraint(Sketcher.Constraint("Coincident", 11, 2, 8, 1))
sketch8.addConstraint(Sketcher.Constraint("Horizontal", 1))
sketch8.addConstraint(Sketcher.Constraint("Vertical", 3))
sketch8.addConstraint(Sketcher.Constraint("Horizontal", 5))
sketch8.addConstraint(Sketcher.Constraint("Vertical", 7))
sketch8.addConstraint(Sketcher.Constraint("Vertical", 8))
sketch8.addConstraint(Sketcher.Constraint("Horizontal", 9))
sketch8.addConstraint(Sketcher.Constraint("Vertical", 10))
sketch8.addConstraint(Sketcher.Constraint("Horizontal", 11))
sketch8.addConstraint(Sketcher.Constraint("Equal", 0, 2))
sketch8.addConstraint(Sketcher.Constraint("Equal", 2, 4))
sketch8.addConstraint(Sketcher.Constraint("Equal", 4, 6))
sketch8.addConstraint(Sketcher.Constraint("Radius", 0, Q("0.59 in")))
sketch8.addConstraint(Sketcher.Constraint("DistanceX", 6, 2, 8, 2, Q("0.23 in")))
sketch8.addConstraint(Sketcher.Constraint("DistanceY", 8, 2, 5, 2, Q("0.25 in")))
sketch8.addConstraint(Sketcher.Constraint("DistanceX", 9, 2, 3, 2, Q("0.23 in")))
sketch8.addConstraint(Sketcher.Constraint("DistanceY", 1, 2, 10, 2, Q("0.25 in")))
sketch8.addConstraint(Sketcher.Constraint("DistanceX", 9, 1, 9, 2, Q("2.7 in")))
sketch8.addConstraint(Sketcher.Constraint("DistanceX", -1, 1, 2, 2, Q("3 in")))
sketch8.addConstraint(Sketcher.Constraint("DistanceY", 3, 1, 3, 2, Q("1.53 in")))
sketch8.addConstraint(Sketcher.Constraint("DistanceY", -1, 1, 0, 3, Q("0.41 in")))
sketch8.setExpression("Constraints[23]", "Params.sketch8_radius")
sketch8.setExpression("Constraints[28]", "Params.sketch8_width")
sketch8.setExpression("Constraints[30]", "Params.sketch8_height")
pocket4 = body.newObject("PartDesign::Pocket", "Pocket003")
pocket4.Profile = sketch8
pocket4.setExpression("Length", "Params.pocket4_length")
doc.recompute()

fillet = body.newObject("PartDesign::Fillet", "Fillet")
fillet.Base = (pocket4, edges_at(pocket4, [
    (79.756, 67.31, 10.922),
    (79.756, -7.62, 10.922),
    (-7.62, 67.31, 10.922),
    (-7.62, -7.62, 10.922),
]))
fillet.setExpression("Radius", "Params.fillet_radius")

sketch9 = body.newObject("Sketcher::SketchObject", "Sketch008")
sketch9.AttachmentSupport = (doc.getObject("XY_Plane"), [""])
sketch9.MapMode = "FlatFace"
sketch9.addGeometry(Part.LineSegment(V(-24, 79, 0), V(95, 79, 0)), False)
sketch9.addGeometry(Part.LineSegment(V(95, 79, 0), V(95, -15, 0)), False)
sketch9.addGeometry(Part.LineSegment(V(95, -15, 0), V(-24, -15, 0)), False)
sketch9.addGeometry(Part.LineSegment(V(-24, -15, 0), V(-24, 79, 0)), False)
sketch9.addConstraint(Sketcher.Constraint("Coincident", 0, 2, 1, 1))
sketch9.addConstraint(Sketcher.Constraint("Coincident", 1, 2, 2, 1))
sketch9.addConstraint(Sketcher.Constraint("Coincident", 2, 2, 3, 1))
sketch9.addConstraint(Sketcher.Constraint("Coincident", 3, 2, 0, 1))
sketch9.addConstraint(Sketcher.Constraint("Horizontal", 0))
sketch9.addConstraint(Sketcher.Constraint("Vertical", 1))
sketch9.addConstraint(Sketcher.Constraint("Horizontal", 2))
sketch9.addConstraint(Sketcher.Constraint("Vertical", 3))
sketch9.addConstraint(Sketcher.Constraint("DistanceX", 0, 1, 0, 2, Q("4.687 in")))
sketch9.addConstraint(Sketcher.Constraint("DistanceY", 1, 2, 1, 1, Q("3.7078 in")))
sketch9.addConstraint(Sketcher.Constraint("DistanceY", -1, 1, 0, 2, Q("3.1061 in")))
sketch9.addConstraint(Sketcher.Constraint("DistanceX", -1, 1, 0, 2, Q("94.7004 mm")))
sketch9.setExpression("Constraints[8]", "Params.sketch9_width")
pocket5 = body.newObject("PartDesign::Pocket", "Pocket004")
pocket5.Profile = sketch9
pocket5.setExpression("Length", "Params.pocket5_length")
pocket5.Reversed = True

doc.recompute()
